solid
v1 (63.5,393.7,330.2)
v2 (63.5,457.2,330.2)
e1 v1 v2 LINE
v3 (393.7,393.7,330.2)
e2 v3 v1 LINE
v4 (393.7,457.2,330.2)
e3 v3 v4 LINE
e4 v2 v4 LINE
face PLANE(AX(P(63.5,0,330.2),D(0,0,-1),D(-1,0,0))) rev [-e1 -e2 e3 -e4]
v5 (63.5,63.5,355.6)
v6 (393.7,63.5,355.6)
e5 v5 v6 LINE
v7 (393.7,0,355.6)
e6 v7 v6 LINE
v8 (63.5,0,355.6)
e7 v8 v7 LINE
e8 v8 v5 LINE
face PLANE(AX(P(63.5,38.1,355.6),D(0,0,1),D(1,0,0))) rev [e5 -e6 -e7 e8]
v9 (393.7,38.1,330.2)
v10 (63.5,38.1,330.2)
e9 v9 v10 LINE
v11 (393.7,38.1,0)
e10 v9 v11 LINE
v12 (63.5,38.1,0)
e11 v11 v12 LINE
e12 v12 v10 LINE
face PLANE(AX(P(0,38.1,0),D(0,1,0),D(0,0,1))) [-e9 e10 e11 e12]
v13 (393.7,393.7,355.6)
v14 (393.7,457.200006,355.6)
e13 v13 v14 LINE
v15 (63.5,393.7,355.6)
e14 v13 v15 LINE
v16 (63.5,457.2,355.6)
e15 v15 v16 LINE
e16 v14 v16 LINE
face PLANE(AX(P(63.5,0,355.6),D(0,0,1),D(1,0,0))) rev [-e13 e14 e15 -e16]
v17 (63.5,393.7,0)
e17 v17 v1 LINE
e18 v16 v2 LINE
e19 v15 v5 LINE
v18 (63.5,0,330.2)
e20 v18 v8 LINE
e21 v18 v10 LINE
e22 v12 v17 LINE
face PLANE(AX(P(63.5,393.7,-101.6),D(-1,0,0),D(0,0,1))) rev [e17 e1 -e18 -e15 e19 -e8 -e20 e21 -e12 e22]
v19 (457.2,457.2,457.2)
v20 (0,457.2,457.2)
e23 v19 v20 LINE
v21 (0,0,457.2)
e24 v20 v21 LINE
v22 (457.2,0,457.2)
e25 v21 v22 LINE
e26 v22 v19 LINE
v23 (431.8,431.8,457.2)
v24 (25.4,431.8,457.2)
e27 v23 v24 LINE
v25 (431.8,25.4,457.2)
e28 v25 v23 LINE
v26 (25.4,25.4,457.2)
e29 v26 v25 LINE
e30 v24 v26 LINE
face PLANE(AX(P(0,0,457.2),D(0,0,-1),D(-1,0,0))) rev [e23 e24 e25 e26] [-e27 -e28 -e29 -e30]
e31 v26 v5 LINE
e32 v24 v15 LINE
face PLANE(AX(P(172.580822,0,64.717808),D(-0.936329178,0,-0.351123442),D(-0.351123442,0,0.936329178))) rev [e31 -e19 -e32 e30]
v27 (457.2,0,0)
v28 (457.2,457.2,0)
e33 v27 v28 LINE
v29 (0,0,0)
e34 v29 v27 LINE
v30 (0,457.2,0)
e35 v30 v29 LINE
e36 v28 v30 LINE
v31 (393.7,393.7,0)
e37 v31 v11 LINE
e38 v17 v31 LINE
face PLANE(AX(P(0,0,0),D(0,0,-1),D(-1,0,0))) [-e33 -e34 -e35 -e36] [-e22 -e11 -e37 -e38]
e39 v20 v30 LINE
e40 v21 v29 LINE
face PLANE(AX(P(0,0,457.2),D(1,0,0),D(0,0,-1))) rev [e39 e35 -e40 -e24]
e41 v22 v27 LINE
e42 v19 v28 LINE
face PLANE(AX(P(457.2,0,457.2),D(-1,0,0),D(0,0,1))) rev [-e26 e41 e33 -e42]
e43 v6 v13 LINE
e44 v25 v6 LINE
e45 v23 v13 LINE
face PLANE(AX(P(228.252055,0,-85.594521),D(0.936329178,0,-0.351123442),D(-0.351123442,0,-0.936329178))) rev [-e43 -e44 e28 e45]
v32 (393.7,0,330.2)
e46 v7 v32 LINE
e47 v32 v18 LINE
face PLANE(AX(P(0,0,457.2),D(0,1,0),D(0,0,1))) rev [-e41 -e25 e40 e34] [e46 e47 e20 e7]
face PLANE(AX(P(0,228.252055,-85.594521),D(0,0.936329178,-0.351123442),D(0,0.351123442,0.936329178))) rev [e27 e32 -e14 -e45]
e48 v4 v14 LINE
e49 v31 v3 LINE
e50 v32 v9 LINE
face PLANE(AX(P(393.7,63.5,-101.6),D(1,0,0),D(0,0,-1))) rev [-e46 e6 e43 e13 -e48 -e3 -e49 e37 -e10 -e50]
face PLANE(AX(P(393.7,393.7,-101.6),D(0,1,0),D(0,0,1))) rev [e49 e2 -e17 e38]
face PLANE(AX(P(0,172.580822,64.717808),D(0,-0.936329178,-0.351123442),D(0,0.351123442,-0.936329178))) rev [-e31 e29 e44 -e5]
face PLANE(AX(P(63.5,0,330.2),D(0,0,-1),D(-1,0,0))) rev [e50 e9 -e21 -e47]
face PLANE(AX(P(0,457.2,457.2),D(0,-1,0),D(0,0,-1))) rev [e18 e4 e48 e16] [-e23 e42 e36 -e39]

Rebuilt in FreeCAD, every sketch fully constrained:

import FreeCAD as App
import Part
import Sketcher
Q = App.Units.Quantity

doc = App.newDocument("Part")
body = doc.addObject("PartDesign::Body", "Body")

# Sketch on XY plane
sketch1 = body.newObject("Sketcher::SketchObject", "Sketch")
sketch1.AttachmentSupport = (doc.getObject("XY_Plane"), [""])
sketch1.MapMode = "FlatFace"
sketch1.addGeometry(Part.LineSegment(App.Vector(0, 457, 0), App.Vector(0, 0, 0)), False)
sketch1.addGeometry(Part.LineSegment(App.Vector(0, 0, 0), App.Vector(457, 0, 0)), False)
sketch1.addGeometry(Part.LineSegment(App.Vector(457, 0, 0), App.Vector(457, 457, 0)), False)
sketch1.addGeometry(Part.LineSegment(App.Vector(457, 457, 0), App.Vector(0, 457, 0)), False)
sketch1.addConstraint(Sketcher.Constraint("Coincident", 0, 2, 1, 1))
sketch1.addConstraint(Sketcher.Constraint("Coincident", 1, 2, 2, 1))
sketch1.addConstraint(Sketcher.Constraint("Coincident", 2, 2, 3, 1))
sketch1.addConstraint(Sketcher.Constraint("Coincident", 3, 2, 0, 1))
sketch1.addConstraint(Sketcher.Constraint("Vertical", 0))
sketch1.addConstraint(Sketcher.Constraint("Horizontal", 1))
sketch1.addConstraint(Sketcher.Constraint("Vertical", 2))
sketch1.addConstraint(Sketcher.Constraint("Horizontal", 3))
sketch1.addConstraint(Sketcher.Constraint("Coincident", 0, 2, -1, 1))
sketch1.addConstraint(Sketcher.Constraint("Equal", 3, 0))
sketch1.addConstraint(Sketcher.Constraint("DistanceX", 1, 1, 1, 2, Q("18 in")))
pad1 = body.newObject("PartDesign::Pad", "Pad")
pad1.Profile = sketch1
pad1.Length = Q("18 in")

# Sketch on XY plane
sketch2 = body.newObject("Sketcher::SketchObject", "Sketch001")
sketch2.AttachmentSupport = (doc.getObject("XY_Plane"), [""])
sketch2.MapMode = "FlatFace"
sketch2.AttachmentOffset = App.Placement(App.Vector(0, 0, 18 * 25.4), App.Rotation())
sketch2.addGeometry(Part.LineSegment(App.Vector(25, 25, 0), App.Vector(432, 25, 0)), False)
sketch2.addGeometry(Part.LineSegment(App.Vector(432, 25, 0), App.Vector(432, 432, 0)), False)
sketch2.addGeometry(Part.LineSegment(App.Vector(432, 432, 0), App.Vector(25, 432, 0)), False)
sketch2.addGeometry(Part.LineSegment(App.Vector(25, 432, 0), App.Vector(25, 25, 0)), False)
sketch2.addConstraint(Sketcher.Constraint("Coincident", 0, 2, 1, 1))
sketch2.addConstraint(Sketcher.Constraint("Coincident", 1, 2, 2, 1))
sketch2.addConstraint(Sketcher.Constraint("Coincident", 2, 2, 3, 1))
sketch2.addConstraint(Sketcher.Constraint("Coincident", 3, 2, 0, 1))
sketch2.addConstraint(Sketcher.Constraint("Horizontal", 0))
sketch2.addConstraint(Sketcher.Constraint("Vertical", 1))
sketch2.addConstraint(Sketcher.Constraint("Horizontal", 2))
sketch2.addConstraint(Sketcher.Constraint("Vertical", 3))
sketch2.addConstraint(Sketcher.Constraint("Equal", 2, 1))
sketch2.addConstraint(Sketcher.Constraint("DistanceX", 0, 1, 0, 2, Q("16 in")))
sketch2.addConstraint(Sketcher.Constraint("DistanceX", -1, 1, 0, 2, Q("17 in")))
sketch2.addConstraint(Sketcher.Constraint("DistanceY", -1, 1, 0, 2, Q("1 in")))

# Sketch on XY plane
sketch3 = body.newObject("Sketcher::SketchObject", "Sketch002")
sketch3.AttachmentSupport = (doc.getObject("XY_Plane"), [""])
sketch3.MapMode = "FlatFace"
sketch3.AttachmentOffset = App.Placement(App.Vector(0, 0, 14 * 25.4), App.Rotation())
sketch3.addGeometry(Part.LineSegment(App.Vector(64, 64, 0), App.Vector(394, 64, 0)), False)
sketch3.addGeometry(Part.LineSegment(App.Vector(394, 64, 0), App.Vector(394, 394, 0)), False)
sketch3.addGeometry(Part.LineSegment(App.Vector(394, 394, 0), App.Vector(64, 394, 0)), False)
sketch3.addGeometry(Part.LineSegment(App.Vector(64, 394, 0), App.Vector(64, 64, 0)), False)
sketch3.addConstraint(Sketcher.Constraint("Coincident", 0, 2, 1, 1))
sketch3.addConstraint(Sketcher.Constraint("Coincident", 1, 2, 2, 1))
sketch3.addConstraint(Sketcher.Constraint("Coincident", 2, 2, 3, 1))
sketch3.addConstraint(Sketcher.Constraint("Coincident", 3, 2, 0, 1))
sketch3.addConstraint(Sketcher.Constraint("Horizontal", 0))
sketch3.addConstraint(Sketcher.Constraint("Vertical", 1))
sketch3.addConstraint(Sketcher.Constraint("Horizontal", 2))
sketch3.addConstraint(Sketcher.Constraint("Vertical", 3))
sketch3.addConstraint(Sketcher.Constraint("Equal", 2, 1))
sketch3.addConstraint(Sketcher.Constraint("DistanceX", 0, 1, 0, 2, Q("13 in")))
sketch3.addConstraint(Sketcher.Constraint("DistanceX", -1, 1, 0, 2, Q("15.5 in")))
sketch3.addConstraint(Sketcher.Constraint("DistanceY", -1, 1, 0, 2, Q("2.5 in")))

subtractiveloft = body.newObject("PartDesign::SubtractiveLoft", "SubtractiveLoft")
subtractiveloft.Profile = sketch2
subtractiveloft.Sections = [sketch3]

# Sketch on XY plane
sketch4 = body.newObject("Sketcher::SketchObject", "Sketch003")
sketch4.AttachmentSupport = (doc.getObject("XY_Plane"), [""])
sketch4.MapMode = "FlatFace"
sketch4.AttachmentOffset = App.Placement(App.Vector(0, 0, 14 * 25.4), App.Rotation())
sketch4.addGeometry(Part.LineSegment(App.Vector(64, 394, 0), App.Vector(64, 64, 0)), False)
sketch4.addGeometry(Part.LineSegment(App.Vector(64, 64, 0), App.Vector(394, 64, 0)), False)
sketch4.addGeometry(Part.LineSegment(App.Vector(394, 64, 0), App.Vector(394, 394, 0)), False)
sketch4.addGeometry(Part.LineSegment(App.Vector(394, 394, 0), App.Vector(64, 394, 0)), False)
sketch4.addConstraint(Sketcher.Constraint("Coincident", 0, 2, 1, 1))
sketch4.addConstraint(Sketcher.Constraint("Coincident", 1, 2, 2, 1))
sketch4.addConstraint(Sketcher.Constraint("Coincident", 2, 2, 3, 1))
sketch4.addConstraint(Sketcher.Constraint("Coincident", 3, 2, 0, 1))
sketch4.addConstraint(Sketcher.Constraint("Vertical", 0))
sketch4.addConstraint(Sketcher.Constraint("Horizontal", 1))
sketch4.addConstraint(Sketcher.Constraint("Vertical", 2))
sketch4.addConstraint(Sketcher.Constraint("Horizontal", 3))
sketch4.addConstraint(Sketcher.Constraint("Equal", 3, 0))
sketch4.addConstraint(Sketcher.Constraint("DistanceX", 1, 1, 1, 2, Q("13 in")))
sketch4.addConstraint(Sketcher.Constraint("DistanceX", -1, 1, 0, 2, Q("2.5 in")))
sketch4.addConstraint(Sketcher.Constraint("DistanceY", -1, 1, 0, 2, Q("2.5 in")))
pocket1 = body.newObject("PartDesign::Pocket", "Pocket")
pocket1.Profile = sketch4
pocket1.Length = Q("18 in")

# Sketch on XZ plane
sketch5 = body.newObject("Sketcher::SketchObject", "Sketch004")
sketch5.AttachmentSupport = (doc.getObject("XZ_Plane"), [""])
sketch5.MapMode = "FlatFace"
sketch5.AttachmentOffset = App.Placement(App.Vector(0, 0, -2.5 * 25.4), App.Rotation())
sketch5.addGeometry(Part.LineSegment(App.Vector(64, 0, 0), App.Vector(64, 356, 0)), False)
sketch5.addGeometry(Part.LineSegment(App.Vector(64, 356, 0), App.Vector(394, 356, 0)), False)
sketch5.addGeometry(Part.LineSegment(App.Vector(394, 356, 0), App.Vector(394, 0, 0)), False)
sketch5.addGeometry(Part.LineSegment(App.Vector(394, 0, 0), App.Vector(64, 0, 0)), False)
sketch5.addConstraint(Sketcher.Constraint("Coincident", 0, 2, 1, 1))
sketch5.addConstraint(Sketcher.Constraint("Coincident", 1, 2, 2, 1))
sketch5.addConstraint(Sketcher.Constraint("Coincident", 2, 2, 3, 1))
sketch5.addConstraint(Sketcher.Constraint("Coincident", 3, 2, 0, 1))
sketch5.addConstraint(Sketcher.Constraint("Vertical", 0))
sketch5.addConstraint(Sketcher.Constraint("Horizontal", 1))
sketch5.addConstraint(Sketcher.Constraint("Vertical", 2))
sketch5.addConstraint(Sketcher.Constraint("Horizontal", 3))
sketch5.addConstraint(Sketcher.Constraint("PointOnObject", 2, 2, -1))
sketch5.addConstraint(Sketcher.Constraint("DistanceX", 1, 1, 1, 2, Q("13 in")))
sketch5.addConstraint(Sketcher.Constraint("DistanceY", 0, 1, 0, 2, Q("14 in")))
sketch5.addConstraint(Sketcher.Constraint("DistanceX", -1, 1, 0, 2, Q("2.5 in")))
pocket2 = body.newObject("PartDesign::Pocket", "Pocket001")
pocket2.Profile = sketch5
pocket2.Length = Q("1 in")
pocket2.Reversed = True

# Sketch on XZ plane
sketch6 = body.newObject("Sketcher::SketchObject", "Sketch005")
sketch6.AttachmentSupport = (doc.getObject("XZ_Plane"), [""])
sketch6.MapMode = "FlatFace"
sketch6.AttachmentOffset = App.Placement(App.Vector(0, 0, -18 * 25.4), App.Rotation())
sketch6.addGeometry(Part.LineSegment(App.Vector(64, 330, 0), App.Vector(64, 356, 0)), False)
sketch6.addGeometry(Part.LineSegment(App.Vector(64, 356, 0), App.Vector(394, 356, 0)), False)
sketch6.addGeometry(Part.LineSegment(App.Vector(394, 356, 0), App.Vector(394, 330, 0)), False)
sketch6.addGeometry(Part.LineSegment(App.Vector(394, 330, 0), App.Vector(64, 330, 0)), False)
sketch6.addConstraint(Sketcher.Constraint("Coincident", 0, 2, 1, 1))
sketch6.addConstraint(Sketcher.Constraint("Coincident", 1, 2, 2, 1))
sketch6.addConstraint(Sketcher.Constraint("Coincident", 2, 2, 3, 1))
sketch6.addConstraint(Sketcher.Constraint("Coincident", 3, 2, 0, 1))
sketch6.addConstraint(Sketcher.Constraint("Vertical", 0))
sketch6.addConstraint(Sketcher.Constraint("Horizontal", 1))
sketch6.addConstraint(Sketcher.Constraint("Vertical", 2))
sketch6.addConstraint(Sketcher.Constraint("Horizontal", 3))
sketch6.addConstraint(Sketcher.Constraint("DistanceX", 1, 1, 1, 2, Q("13 in")))
sketch6.addConstraint(Sketcher.Constraint("DistanceY", 0, 1, 0, 2, Q("1 in")))
sketch6.addConstraint(Sketcher.Constraint("DistanceY", -1, 1, 0, 2, Q("14 in")))
sketch6.addConstraint(Sketcher.Constraint("DistanceX", -1, 1, 0, 2, Q("2.5 in")))
pocket3 = body.newObject("PartDesign::Pocket", "Pocket002")
pocket3.Profile = sketch6
pocket3.Type = "ThroughAll"
pocket3.Midplane = True

doc.recompute()
